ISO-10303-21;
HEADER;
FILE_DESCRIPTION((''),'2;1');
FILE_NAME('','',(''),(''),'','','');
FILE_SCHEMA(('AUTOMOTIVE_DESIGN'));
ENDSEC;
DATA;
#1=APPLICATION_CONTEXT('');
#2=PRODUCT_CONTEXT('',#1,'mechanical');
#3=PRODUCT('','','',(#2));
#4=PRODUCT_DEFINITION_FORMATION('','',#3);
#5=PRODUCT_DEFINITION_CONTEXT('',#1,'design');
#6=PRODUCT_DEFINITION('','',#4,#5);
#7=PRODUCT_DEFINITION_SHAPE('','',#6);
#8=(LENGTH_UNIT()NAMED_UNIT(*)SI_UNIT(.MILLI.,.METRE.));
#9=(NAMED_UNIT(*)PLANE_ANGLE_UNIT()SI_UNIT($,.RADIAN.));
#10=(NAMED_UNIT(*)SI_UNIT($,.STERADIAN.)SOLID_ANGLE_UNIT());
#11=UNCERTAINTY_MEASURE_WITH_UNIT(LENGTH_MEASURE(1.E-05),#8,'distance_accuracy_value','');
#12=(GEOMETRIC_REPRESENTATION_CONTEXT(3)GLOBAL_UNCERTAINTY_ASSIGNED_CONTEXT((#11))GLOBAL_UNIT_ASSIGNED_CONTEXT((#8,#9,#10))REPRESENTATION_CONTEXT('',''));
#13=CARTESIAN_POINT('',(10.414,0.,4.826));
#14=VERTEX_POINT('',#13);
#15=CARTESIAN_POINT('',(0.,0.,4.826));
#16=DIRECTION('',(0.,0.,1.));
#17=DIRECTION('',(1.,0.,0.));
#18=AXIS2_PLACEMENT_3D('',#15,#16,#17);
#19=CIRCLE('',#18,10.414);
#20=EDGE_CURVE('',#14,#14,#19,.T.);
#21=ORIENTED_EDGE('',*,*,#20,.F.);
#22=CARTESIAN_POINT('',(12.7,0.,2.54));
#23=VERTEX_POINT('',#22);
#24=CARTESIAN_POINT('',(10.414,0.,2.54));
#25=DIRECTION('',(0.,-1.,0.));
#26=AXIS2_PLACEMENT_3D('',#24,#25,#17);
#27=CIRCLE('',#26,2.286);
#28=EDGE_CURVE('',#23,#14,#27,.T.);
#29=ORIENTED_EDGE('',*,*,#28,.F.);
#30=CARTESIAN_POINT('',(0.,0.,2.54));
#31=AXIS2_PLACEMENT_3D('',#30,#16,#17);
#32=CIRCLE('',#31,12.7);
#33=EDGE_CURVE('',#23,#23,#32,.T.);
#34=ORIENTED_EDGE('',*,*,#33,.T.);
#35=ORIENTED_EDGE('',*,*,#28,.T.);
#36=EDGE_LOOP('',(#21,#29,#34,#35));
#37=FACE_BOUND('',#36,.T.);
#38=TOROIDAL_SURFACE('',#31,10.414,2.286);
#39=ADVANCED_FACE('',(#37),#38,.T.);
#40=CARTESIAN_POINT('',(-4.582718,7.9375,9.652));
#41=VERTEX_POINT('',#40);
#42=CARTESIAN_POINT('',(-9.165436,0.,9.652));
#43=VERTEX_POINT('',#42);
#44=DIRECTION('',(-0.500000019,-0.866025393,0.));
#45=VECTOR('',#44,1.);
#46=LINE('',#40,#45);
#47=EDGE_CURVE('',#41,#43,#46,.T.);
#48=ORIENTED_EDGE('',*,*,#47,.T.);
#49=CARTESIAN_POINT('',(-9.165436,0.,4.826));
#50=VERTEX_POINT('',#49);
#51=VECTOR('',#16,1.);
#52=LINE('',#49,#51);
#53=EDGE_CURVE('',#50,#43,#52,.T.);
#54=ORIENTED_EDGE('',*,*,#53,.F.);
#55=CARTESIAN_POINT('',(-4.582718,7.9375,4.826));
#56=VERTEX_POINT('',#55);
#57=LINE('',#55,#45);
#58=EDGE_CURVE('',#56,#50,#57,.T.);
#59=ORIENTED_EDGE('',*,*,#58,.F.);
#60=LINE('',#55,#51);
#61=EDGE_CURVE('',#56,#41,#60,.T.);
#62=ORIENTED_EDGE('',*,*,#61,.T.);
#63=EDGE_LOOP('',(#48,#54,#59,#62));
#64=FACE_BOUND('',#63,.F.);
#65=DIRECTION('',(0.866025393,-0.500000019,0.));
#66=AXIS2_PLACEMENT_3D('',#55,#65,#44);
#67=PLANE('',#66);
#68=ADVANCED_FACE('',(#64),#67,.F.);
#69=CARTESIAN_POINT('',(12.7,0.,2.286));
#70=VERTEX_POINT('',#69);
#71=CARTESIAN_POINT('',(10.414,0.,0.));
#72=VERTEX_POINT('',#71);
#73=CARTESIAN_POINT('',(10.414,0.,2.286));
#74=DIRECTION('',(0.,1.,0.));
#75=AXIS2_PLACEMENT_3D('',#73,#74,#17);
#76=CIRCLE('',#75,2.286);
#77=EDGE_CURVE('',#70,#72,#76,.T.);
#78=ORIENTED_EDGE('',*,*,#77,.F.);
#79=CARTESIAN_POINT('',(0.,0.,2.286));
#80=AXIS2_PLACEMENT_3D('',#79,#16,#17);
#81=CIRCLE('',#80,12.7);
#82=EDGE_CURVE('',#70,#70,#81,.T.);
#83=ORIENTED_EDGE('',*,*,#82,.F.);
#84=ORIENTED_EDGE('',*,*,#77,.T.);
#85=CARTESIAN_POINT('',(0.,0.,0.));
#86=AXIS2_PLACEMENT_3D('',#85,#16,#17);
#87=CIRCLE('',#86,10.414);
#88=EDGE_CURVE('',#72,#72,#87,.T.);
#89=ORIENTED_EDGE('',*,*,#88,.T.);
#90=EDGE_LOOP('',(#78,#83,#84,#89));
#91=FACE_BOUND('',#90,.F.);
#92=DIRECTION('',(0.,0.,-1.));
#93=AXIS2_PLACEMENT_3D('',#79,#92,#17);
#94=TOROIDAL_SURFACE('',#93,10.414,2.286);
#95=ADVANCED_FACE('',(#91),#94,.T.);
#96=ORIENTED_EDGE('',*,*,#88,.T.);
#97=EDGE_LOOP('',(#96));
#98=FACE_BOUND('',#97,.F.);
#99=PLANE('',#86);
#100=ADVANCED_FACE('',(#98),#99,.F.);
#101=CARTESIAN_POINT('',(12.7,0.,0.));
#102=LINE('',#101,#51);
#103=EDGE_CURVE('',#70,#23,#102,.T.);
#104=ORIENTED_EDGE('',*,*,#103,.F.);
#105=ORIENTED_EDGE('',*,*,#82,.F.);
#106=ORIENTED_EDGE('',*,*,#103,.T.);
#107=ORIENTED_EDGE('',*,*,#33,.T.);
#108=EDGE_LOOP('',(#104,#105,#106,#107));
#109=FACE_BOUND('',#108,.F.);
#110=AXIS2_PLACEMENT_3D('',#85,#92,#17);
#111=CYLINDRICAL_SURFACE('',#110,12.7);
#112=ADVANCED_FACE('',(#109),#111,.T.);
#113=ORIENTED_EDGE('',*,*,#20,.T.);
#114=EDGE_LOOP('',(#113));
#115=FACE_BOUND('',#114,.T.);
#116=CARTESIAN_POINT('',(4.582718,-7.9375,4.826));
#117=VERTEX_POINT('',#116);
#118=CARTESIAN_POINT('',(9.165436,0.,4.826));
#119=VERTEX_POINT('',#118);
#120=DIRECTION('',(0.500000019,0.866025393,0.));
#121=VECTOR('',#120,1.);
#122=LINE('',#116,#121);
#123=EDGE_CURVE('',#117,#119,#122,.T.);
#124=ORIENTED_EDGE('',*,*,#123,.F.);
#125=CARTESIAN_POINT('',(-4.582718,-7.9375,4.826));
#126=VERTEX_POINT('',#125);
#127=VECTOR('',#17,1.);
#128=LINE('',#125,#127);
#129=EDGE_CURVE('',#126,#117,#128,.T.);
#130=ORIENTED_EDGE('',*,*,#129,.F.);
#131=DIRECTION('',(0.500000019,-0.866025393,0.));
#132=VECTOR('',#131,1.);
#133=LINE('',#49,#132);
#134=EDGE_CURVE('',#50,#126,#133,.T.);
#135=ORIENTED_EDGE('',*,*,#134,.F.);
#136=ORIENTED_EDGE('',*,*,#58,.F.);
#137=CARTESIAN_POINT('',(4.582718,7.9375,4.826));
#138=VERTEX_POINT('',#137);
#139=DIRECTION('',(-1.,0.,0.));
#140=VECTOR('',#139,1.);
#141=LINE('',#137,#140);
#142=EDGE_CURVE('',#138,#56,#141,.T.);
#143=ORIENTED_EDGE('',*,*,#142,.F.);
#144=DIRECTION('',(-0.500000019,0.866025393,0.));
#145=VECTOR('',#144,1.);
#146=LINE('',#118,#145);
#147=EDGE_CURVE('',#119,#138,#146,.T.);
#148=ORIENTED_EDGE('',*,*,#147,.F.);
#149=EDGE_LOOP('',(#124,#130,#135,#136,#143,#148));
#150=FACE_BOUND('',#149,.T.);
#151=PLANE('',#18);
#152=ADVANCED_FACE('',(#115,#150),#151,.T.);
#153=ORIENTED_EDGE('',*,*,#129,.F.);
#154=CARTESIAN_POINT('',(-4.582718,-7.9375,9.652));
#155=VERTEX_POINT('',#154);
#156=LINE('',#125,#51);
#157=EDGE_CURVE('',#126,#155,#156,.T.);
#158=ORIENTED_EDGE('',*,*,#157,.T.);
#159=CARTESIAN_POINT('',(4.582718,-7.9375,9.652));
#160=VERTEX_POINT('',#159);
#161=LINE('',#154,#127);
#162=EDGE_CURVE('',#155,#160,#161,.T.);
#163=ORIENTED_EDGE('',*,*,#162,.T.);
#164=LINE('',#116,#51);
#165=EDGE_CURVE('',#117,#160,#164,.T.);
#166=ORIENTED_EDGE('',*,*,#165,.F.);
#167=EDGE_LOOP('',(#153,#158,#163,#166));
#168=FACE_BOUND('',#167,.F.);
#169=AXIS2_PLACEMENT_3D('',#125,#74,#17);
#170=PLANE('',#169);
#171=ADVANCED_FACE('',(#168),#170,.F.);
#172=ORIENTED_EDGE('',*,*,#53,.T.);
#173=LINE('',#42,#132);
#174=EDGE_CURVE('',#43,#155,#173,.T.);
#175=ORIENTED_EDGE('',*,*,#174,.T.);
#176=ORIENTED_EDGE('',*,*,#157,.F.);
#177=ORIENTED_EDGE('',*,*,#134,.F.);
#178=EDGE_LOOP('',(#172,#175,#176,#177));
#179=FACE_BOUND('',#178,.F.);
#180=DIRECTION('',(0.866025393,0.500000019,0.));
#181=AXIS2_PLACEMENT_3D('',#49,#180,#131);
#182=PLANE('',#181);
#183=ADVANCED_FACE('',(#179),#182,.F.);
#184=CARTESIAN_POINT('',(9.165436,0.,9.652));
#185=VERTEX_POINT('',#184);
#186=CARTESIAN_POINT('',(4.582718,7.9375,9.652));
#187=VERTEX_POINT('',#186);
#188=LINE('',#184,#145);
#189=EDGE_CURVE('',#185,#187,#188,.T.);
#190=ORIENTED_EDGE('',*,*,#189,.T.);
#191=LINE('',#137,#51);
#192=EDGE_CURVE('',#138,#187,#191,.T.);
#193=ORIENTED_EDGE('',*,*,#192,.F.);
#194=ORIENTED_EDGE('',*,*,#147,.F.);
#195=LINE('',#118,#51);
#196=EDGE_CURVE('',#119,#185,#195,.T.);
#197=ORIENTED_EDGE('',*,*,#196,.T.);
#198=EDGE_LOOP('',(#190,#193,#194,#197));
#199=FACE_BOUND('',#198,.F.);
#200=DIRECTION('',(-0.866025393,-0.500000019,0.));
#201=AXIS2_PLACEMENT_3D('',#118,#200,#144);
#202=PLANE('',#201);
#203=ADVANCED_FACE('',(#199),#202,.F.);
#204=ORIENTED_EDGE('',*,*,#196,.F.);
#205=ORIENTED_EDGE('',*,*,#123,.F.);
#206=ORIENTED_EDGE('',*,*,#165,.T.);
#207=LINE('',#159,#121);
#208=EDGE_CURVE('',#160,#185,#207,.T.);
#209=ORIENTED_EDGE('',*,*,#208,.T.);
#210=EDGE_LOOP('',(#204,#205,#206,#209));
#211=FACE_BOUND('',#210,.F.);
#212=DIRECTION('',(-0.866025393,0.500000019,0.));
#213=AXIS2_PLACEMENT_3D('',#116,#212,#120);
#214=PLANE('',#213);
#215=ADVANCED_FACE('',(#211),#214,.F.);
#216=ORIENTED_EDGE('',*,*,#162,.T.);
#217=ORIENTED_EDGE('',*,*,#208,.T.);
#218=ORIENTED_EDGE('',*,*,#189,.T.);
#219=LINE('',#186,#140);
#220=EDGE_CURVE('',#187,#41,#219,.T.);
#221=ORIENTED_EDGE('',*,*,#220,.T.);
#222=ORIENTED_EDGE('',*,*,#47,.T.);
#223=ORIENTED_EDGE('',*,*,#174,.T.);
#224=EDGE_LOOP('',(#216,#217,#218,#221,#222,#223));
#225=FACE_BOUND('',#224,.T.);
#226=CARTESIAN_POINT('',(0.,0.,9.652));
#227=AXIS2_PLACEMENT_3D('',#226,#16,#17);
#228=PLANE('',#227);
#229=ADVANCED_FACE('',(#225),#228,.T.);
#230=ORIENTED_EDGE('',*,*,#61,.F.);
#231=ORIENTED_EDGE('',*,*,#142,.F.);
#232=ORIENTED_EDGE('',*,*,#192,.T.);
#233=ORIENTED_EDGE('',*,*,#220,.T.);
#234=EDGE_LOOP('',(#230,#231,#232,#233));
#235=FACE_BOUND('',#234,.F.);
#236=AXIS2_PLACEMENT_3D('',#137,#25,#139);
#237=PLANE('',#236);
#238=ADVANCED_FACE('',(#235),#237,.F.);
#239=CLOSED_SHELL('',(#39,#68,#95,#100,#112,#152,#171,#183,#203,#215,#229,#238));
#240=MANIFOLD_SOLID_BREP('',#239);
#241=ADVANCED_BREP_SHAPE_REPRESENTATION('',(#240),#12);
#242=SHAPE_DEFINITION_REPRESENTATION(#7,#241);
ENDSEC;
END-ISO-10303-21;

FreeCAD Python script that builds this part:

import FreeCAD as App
import Part
import Sketcher
Q = App.Units.Quantity


def edges_at(feature, points):
    """Names of the edges that pass closest to the given points."""
    edges = feature.Shape.Edges
    near = lambda p: min(range(len(edges)), key=lambda i: edges[i].distToShape(Part.Vertex(*p))[0])
    return sorted({f"Edge{near(p) + 1}" for p in points})

doc = App.newDocument("Part")
body = doc.addObject("PartDesign::Body", "Body")

sketch1 = body.newObject("Sketcher::SketchObject", "Sketch")
sketch1.AttachmentSupport = (doc.getObject("XY_Plane"), [""])
sketch1.MapMode = "FlatFace"
sketch1.addGeometry(Part.Circle(App.Vector(0, 0, 0), App.Vector(0, 0, 1), 13), False)
sketch1.addConstraint([
    Sketcher.Constraint("Coincident", 0, 3, -1, 1),
    Sketcher.Constraint("Diameter", 0, Q("1 in")),
])
pad1 = body.newObject("PartDesign::Pad", "Pad")
pad1.Profile = sketch1
pad1.Length = Q("0.19 in")

sketch2 = body.newObject("Sketcher::SketchObject", "Sketch001")
sketch2.AttachmentSupport = (doc.getObject("XY_Plane"), [""])
sketch2.MapMode = "FlatFace"
sketch2.AttachmentOffset = App.Placement(App.Vector(0, 0, 0.19 * 25.4), App.Rotation())
sketch2.addGeometry([
    Part.LineSegment(App.Vector(5, 8, 0), App.Vector(-5, 8, 0)),
    Part.LineSegment(App.Vector(-5, 8, 0), App.Vector(-9, 0, 0)),
    Part.LineSegment(App.Vector(-9, 0, 0), App.Vector(-5, -8, 0)),
    Part.LineSegment(App.Vector(-5, -8, 0), App.Vector(5, -8, 0)),
    Part.LineSegment(App.Vector(5, -8, 0), App.Vector(9, 0, 0)),
    Part.LineSegment(App.Vector(9, 0, 0), App.Vector(5, 8, 0)),
], False)
sketch2.addConstraint([
    Sketcher.Constraint("Coincident", 0, 2, 1, 1),
    Sketcher.Constraint("Coincident", 1, 2, 2, 1),
    Sketcher.Constraint("Coincident", 2, 2, 3, 1),
    Sketcher.Constraint("Coincident", 3, 2, 4, 1),
    Sketcher.Constraint("Coincident", 4, 2, 5, 1),
    Sketcher.Constraint("Coincident", 5, 2, 0, 1),
    Sketcher.Constraint("Horizontal", 0),
    Sketcher.Constraint("Horizontal", 3),
    Sketcher.Constraint("Symmetric", 0, 2, 3, 2, -1, 1),
    Sketcher.Constraint("Symmetric", 1, 2, 4, 2, -1, 1),
    Sketcher.Constraint("PointOnObject", 1, 2, -1),
    Sketcher.Constraint("Parallel", 2, 5),
    Sketcher.Constraint("Vertical", 0, 2, 2, 2),
    Sketcher.Constraint("Angle", 1, Q("-120.000001 deg")),
    Sketcher.Constraint("DistanceY", -1, 1, 0, 2, Q("0.3125 in")),
    Sketcher.Constraint("DistanceX", 0, 2, 0, 1, Q("9.165436 mm")),
])
pad2 = body.newObject("PartDesign::Pad", "Pad001")
pad2.Profile = sketch2
pad2.Length = Q("0.19 in")
doc.recompute()

fillet = body.newObject("PartDesign::Fillet", "Fillet")
fillet.Base = (pad2, edges_at(pad2, [(-12.7, 0, 4.826)]))
fillet.Radius = Q("0.09 in")
doc.recompute()

fillet2 = body.newObject("PartDesign::Fillet", "Fillet001")
fillet2.Base = (fillet, edges_at(fillet, [(-12.7, 0, 0)]))
fillet2.Radius = Q("0.09 in")

doc.recompute()
